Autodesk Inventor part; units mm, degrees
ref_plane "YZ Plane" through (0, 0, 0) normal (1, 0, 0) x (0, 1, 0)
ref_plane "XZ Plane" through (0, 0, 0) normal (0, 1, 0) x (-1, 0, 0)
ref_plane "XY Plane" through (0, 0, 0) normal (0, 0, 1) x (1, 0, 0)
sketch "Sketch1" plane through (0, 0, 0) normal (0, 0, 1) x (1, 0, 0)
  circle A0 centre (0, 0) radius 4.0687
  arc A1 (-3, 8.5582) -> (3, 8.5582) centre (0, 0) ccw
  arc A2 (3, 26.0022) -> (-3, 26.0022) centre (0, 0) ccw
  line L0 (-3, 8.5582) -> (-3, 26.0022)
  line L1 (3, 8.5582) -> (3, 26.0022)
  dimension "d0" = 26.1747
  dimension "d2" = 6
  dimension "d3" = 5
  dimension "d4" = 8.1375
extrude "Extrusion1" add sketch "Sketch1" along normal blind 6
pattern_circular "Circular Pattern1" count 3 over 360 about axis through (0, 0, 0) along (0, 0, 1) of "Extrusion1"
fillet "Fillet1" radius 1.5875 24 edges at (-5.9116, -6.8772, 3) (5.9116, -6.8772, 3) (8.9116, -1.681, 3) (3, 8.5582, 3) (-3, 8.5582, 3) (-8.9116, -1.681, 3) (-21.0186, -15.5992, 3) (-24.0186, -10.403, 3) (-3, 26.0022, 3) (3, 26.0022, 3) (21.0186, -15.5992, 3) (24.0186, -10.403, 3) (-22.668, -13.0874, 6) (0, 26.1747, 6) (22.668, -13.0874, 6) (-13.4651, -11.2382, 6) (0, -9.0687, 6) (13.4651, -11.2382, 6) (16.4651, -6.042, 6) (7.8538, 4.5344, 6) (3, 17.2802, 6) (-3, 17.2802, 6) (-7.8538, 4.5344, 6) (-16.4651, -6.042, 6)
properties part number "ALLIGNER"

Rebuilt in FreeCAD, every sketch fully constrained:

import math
import FreeCAD as App
import Part
import Sketcher
Q = App.Units.Quantity


def edges_at(feature, points):
    """Names of the edges that pass closest to the given points."""
    edges = feature.Shape.Edges
    near = lambda p: min(range(len(edges)), key=lambda i: edges[i].distToShape(Part.Vertex(*p))[0])
    return sorted({f"Edge{near(p) + 1}" for p in points})

doc = App.newDocument("Part")
body = doc.addObject("PartDesign::Body", "Body")

sketch1 = body.newObject("Sketcher::SketchObject", "Sketch")
sketch1.AttachmentSupport = (doc.getObject("XY_Plane"), [""])
sketch1.MapMode = "FlatFace"
sketch1.addGeometry([
    Part.LineSegment(App.Vector(-3, 26, 0), App.Vector(-3, 8.6, 0)),
    Part.ArcOfCircle(Part.Circle(App.Vector(0, 0, 0), App.Vector(0, 0, 1), 9.1), math.radians(109), math.radians(431)),
    Part.LineSegment(App.Vector(3, 8.6, 0), App.Vector(3, 26, 0)),
    Part.ArcOfCircle(Part.Circle(App.Vector(0, 0, 0), App.Vector(0, 0, 1), 26.2), math.radians(83.42), math.radians(96.58)),
    Part.Circle(App.Vector(0, 0, 0), App.Vector(0, 0, 1), 4.1),
], False)
sketch1.addConstraint([
    Sketcher.Constraint("Coincident", 0, 2, 1, 1),
    Sketcher.Constraint("Coincident", 1, 2, 2, 1),
    Sketcher.Constraint("Coincident", 2, 2, 3, 1),
    Sketcher.Constraint("Coincident", 3, 2, 0, 1),
    Sketcher.Constraint("Vertical", 0),
    Sketcher.Constraint("Vertical", 2),
    Sketcher.Constraint("Coincident", 1, 3, -1, 1),
    Sketcher.Constraint("Coincident", 3, 3, -1, 1),
    Sketcher.Constraint("Coincident", 4, 3, -1, 1),
    Sketcher.Constraint("Horizontal", 0, 2, 1, 2),
    Sketcher.Constraint("Radius", 3, Q("1.0305 in")),
    Sketcher.Constraint("Diameter", 4, 8.1374),
    Sketcher.Constraint("Radius", 1, 9.0688),
    Sketcher.Constraint("DistanceX", 0, 2, 1, 2, 6.0),
])
pad1 = body.newObject("PartDesign::Pad", "Pad")
pad1.Profile = sketch1
pad1.Length = 6
doc.recompute()

polarpattern = body.newObject("PartDesign::PolarPattern", "PolarPattern")
polarpattern.Originals = [pad1]
polarpattern.Axis = (doc.getObject("Z_Axis"), [""])
polarpattern.Angle = 360
polarpattern.Occurrences = 3
body.Tip = polarpattern
doc.recompute()

fillet = body.newObject("PartDesign::Fillet", "Fillet")
fillet.Base = (polarpattern, edges_at(polarpattern, [
    (-5.912, -6.877, 3),
    (5.912, -6.877, 3),
    (8.912, -1.681, 3),
    (3, 8.558, 3),
    (-3, 8.558, 3),
    (-8.912, -1.681, 3),
    (-21.019, -15.599, 3),
    (-24.019, -10.403, 3),
    (-3, 26.002, 3),
    (3, 26.002, 3),
    (21.019, -15.599, 3),
    (24.019, -10.403, 3),
    (-22.668, -13.087, 6),
    (0, 26.175, 6),
    (22.668, -13.087, 6),
    (-13.465, -11.238, 6),
    (0, -9.069, 6),
    (13.465, -11.238, 6),
    (16.465, -6.042, 6),
    (7.854, 4.534, 6),
    (3, 17.28, 6),
    (-3, 17.28, 6),
    (-7.854, 4.534, 6),
    (-16.465, -6.042, 6),
]))
fillet.Radius = Q("0.0625 in")

doc.recompute()
